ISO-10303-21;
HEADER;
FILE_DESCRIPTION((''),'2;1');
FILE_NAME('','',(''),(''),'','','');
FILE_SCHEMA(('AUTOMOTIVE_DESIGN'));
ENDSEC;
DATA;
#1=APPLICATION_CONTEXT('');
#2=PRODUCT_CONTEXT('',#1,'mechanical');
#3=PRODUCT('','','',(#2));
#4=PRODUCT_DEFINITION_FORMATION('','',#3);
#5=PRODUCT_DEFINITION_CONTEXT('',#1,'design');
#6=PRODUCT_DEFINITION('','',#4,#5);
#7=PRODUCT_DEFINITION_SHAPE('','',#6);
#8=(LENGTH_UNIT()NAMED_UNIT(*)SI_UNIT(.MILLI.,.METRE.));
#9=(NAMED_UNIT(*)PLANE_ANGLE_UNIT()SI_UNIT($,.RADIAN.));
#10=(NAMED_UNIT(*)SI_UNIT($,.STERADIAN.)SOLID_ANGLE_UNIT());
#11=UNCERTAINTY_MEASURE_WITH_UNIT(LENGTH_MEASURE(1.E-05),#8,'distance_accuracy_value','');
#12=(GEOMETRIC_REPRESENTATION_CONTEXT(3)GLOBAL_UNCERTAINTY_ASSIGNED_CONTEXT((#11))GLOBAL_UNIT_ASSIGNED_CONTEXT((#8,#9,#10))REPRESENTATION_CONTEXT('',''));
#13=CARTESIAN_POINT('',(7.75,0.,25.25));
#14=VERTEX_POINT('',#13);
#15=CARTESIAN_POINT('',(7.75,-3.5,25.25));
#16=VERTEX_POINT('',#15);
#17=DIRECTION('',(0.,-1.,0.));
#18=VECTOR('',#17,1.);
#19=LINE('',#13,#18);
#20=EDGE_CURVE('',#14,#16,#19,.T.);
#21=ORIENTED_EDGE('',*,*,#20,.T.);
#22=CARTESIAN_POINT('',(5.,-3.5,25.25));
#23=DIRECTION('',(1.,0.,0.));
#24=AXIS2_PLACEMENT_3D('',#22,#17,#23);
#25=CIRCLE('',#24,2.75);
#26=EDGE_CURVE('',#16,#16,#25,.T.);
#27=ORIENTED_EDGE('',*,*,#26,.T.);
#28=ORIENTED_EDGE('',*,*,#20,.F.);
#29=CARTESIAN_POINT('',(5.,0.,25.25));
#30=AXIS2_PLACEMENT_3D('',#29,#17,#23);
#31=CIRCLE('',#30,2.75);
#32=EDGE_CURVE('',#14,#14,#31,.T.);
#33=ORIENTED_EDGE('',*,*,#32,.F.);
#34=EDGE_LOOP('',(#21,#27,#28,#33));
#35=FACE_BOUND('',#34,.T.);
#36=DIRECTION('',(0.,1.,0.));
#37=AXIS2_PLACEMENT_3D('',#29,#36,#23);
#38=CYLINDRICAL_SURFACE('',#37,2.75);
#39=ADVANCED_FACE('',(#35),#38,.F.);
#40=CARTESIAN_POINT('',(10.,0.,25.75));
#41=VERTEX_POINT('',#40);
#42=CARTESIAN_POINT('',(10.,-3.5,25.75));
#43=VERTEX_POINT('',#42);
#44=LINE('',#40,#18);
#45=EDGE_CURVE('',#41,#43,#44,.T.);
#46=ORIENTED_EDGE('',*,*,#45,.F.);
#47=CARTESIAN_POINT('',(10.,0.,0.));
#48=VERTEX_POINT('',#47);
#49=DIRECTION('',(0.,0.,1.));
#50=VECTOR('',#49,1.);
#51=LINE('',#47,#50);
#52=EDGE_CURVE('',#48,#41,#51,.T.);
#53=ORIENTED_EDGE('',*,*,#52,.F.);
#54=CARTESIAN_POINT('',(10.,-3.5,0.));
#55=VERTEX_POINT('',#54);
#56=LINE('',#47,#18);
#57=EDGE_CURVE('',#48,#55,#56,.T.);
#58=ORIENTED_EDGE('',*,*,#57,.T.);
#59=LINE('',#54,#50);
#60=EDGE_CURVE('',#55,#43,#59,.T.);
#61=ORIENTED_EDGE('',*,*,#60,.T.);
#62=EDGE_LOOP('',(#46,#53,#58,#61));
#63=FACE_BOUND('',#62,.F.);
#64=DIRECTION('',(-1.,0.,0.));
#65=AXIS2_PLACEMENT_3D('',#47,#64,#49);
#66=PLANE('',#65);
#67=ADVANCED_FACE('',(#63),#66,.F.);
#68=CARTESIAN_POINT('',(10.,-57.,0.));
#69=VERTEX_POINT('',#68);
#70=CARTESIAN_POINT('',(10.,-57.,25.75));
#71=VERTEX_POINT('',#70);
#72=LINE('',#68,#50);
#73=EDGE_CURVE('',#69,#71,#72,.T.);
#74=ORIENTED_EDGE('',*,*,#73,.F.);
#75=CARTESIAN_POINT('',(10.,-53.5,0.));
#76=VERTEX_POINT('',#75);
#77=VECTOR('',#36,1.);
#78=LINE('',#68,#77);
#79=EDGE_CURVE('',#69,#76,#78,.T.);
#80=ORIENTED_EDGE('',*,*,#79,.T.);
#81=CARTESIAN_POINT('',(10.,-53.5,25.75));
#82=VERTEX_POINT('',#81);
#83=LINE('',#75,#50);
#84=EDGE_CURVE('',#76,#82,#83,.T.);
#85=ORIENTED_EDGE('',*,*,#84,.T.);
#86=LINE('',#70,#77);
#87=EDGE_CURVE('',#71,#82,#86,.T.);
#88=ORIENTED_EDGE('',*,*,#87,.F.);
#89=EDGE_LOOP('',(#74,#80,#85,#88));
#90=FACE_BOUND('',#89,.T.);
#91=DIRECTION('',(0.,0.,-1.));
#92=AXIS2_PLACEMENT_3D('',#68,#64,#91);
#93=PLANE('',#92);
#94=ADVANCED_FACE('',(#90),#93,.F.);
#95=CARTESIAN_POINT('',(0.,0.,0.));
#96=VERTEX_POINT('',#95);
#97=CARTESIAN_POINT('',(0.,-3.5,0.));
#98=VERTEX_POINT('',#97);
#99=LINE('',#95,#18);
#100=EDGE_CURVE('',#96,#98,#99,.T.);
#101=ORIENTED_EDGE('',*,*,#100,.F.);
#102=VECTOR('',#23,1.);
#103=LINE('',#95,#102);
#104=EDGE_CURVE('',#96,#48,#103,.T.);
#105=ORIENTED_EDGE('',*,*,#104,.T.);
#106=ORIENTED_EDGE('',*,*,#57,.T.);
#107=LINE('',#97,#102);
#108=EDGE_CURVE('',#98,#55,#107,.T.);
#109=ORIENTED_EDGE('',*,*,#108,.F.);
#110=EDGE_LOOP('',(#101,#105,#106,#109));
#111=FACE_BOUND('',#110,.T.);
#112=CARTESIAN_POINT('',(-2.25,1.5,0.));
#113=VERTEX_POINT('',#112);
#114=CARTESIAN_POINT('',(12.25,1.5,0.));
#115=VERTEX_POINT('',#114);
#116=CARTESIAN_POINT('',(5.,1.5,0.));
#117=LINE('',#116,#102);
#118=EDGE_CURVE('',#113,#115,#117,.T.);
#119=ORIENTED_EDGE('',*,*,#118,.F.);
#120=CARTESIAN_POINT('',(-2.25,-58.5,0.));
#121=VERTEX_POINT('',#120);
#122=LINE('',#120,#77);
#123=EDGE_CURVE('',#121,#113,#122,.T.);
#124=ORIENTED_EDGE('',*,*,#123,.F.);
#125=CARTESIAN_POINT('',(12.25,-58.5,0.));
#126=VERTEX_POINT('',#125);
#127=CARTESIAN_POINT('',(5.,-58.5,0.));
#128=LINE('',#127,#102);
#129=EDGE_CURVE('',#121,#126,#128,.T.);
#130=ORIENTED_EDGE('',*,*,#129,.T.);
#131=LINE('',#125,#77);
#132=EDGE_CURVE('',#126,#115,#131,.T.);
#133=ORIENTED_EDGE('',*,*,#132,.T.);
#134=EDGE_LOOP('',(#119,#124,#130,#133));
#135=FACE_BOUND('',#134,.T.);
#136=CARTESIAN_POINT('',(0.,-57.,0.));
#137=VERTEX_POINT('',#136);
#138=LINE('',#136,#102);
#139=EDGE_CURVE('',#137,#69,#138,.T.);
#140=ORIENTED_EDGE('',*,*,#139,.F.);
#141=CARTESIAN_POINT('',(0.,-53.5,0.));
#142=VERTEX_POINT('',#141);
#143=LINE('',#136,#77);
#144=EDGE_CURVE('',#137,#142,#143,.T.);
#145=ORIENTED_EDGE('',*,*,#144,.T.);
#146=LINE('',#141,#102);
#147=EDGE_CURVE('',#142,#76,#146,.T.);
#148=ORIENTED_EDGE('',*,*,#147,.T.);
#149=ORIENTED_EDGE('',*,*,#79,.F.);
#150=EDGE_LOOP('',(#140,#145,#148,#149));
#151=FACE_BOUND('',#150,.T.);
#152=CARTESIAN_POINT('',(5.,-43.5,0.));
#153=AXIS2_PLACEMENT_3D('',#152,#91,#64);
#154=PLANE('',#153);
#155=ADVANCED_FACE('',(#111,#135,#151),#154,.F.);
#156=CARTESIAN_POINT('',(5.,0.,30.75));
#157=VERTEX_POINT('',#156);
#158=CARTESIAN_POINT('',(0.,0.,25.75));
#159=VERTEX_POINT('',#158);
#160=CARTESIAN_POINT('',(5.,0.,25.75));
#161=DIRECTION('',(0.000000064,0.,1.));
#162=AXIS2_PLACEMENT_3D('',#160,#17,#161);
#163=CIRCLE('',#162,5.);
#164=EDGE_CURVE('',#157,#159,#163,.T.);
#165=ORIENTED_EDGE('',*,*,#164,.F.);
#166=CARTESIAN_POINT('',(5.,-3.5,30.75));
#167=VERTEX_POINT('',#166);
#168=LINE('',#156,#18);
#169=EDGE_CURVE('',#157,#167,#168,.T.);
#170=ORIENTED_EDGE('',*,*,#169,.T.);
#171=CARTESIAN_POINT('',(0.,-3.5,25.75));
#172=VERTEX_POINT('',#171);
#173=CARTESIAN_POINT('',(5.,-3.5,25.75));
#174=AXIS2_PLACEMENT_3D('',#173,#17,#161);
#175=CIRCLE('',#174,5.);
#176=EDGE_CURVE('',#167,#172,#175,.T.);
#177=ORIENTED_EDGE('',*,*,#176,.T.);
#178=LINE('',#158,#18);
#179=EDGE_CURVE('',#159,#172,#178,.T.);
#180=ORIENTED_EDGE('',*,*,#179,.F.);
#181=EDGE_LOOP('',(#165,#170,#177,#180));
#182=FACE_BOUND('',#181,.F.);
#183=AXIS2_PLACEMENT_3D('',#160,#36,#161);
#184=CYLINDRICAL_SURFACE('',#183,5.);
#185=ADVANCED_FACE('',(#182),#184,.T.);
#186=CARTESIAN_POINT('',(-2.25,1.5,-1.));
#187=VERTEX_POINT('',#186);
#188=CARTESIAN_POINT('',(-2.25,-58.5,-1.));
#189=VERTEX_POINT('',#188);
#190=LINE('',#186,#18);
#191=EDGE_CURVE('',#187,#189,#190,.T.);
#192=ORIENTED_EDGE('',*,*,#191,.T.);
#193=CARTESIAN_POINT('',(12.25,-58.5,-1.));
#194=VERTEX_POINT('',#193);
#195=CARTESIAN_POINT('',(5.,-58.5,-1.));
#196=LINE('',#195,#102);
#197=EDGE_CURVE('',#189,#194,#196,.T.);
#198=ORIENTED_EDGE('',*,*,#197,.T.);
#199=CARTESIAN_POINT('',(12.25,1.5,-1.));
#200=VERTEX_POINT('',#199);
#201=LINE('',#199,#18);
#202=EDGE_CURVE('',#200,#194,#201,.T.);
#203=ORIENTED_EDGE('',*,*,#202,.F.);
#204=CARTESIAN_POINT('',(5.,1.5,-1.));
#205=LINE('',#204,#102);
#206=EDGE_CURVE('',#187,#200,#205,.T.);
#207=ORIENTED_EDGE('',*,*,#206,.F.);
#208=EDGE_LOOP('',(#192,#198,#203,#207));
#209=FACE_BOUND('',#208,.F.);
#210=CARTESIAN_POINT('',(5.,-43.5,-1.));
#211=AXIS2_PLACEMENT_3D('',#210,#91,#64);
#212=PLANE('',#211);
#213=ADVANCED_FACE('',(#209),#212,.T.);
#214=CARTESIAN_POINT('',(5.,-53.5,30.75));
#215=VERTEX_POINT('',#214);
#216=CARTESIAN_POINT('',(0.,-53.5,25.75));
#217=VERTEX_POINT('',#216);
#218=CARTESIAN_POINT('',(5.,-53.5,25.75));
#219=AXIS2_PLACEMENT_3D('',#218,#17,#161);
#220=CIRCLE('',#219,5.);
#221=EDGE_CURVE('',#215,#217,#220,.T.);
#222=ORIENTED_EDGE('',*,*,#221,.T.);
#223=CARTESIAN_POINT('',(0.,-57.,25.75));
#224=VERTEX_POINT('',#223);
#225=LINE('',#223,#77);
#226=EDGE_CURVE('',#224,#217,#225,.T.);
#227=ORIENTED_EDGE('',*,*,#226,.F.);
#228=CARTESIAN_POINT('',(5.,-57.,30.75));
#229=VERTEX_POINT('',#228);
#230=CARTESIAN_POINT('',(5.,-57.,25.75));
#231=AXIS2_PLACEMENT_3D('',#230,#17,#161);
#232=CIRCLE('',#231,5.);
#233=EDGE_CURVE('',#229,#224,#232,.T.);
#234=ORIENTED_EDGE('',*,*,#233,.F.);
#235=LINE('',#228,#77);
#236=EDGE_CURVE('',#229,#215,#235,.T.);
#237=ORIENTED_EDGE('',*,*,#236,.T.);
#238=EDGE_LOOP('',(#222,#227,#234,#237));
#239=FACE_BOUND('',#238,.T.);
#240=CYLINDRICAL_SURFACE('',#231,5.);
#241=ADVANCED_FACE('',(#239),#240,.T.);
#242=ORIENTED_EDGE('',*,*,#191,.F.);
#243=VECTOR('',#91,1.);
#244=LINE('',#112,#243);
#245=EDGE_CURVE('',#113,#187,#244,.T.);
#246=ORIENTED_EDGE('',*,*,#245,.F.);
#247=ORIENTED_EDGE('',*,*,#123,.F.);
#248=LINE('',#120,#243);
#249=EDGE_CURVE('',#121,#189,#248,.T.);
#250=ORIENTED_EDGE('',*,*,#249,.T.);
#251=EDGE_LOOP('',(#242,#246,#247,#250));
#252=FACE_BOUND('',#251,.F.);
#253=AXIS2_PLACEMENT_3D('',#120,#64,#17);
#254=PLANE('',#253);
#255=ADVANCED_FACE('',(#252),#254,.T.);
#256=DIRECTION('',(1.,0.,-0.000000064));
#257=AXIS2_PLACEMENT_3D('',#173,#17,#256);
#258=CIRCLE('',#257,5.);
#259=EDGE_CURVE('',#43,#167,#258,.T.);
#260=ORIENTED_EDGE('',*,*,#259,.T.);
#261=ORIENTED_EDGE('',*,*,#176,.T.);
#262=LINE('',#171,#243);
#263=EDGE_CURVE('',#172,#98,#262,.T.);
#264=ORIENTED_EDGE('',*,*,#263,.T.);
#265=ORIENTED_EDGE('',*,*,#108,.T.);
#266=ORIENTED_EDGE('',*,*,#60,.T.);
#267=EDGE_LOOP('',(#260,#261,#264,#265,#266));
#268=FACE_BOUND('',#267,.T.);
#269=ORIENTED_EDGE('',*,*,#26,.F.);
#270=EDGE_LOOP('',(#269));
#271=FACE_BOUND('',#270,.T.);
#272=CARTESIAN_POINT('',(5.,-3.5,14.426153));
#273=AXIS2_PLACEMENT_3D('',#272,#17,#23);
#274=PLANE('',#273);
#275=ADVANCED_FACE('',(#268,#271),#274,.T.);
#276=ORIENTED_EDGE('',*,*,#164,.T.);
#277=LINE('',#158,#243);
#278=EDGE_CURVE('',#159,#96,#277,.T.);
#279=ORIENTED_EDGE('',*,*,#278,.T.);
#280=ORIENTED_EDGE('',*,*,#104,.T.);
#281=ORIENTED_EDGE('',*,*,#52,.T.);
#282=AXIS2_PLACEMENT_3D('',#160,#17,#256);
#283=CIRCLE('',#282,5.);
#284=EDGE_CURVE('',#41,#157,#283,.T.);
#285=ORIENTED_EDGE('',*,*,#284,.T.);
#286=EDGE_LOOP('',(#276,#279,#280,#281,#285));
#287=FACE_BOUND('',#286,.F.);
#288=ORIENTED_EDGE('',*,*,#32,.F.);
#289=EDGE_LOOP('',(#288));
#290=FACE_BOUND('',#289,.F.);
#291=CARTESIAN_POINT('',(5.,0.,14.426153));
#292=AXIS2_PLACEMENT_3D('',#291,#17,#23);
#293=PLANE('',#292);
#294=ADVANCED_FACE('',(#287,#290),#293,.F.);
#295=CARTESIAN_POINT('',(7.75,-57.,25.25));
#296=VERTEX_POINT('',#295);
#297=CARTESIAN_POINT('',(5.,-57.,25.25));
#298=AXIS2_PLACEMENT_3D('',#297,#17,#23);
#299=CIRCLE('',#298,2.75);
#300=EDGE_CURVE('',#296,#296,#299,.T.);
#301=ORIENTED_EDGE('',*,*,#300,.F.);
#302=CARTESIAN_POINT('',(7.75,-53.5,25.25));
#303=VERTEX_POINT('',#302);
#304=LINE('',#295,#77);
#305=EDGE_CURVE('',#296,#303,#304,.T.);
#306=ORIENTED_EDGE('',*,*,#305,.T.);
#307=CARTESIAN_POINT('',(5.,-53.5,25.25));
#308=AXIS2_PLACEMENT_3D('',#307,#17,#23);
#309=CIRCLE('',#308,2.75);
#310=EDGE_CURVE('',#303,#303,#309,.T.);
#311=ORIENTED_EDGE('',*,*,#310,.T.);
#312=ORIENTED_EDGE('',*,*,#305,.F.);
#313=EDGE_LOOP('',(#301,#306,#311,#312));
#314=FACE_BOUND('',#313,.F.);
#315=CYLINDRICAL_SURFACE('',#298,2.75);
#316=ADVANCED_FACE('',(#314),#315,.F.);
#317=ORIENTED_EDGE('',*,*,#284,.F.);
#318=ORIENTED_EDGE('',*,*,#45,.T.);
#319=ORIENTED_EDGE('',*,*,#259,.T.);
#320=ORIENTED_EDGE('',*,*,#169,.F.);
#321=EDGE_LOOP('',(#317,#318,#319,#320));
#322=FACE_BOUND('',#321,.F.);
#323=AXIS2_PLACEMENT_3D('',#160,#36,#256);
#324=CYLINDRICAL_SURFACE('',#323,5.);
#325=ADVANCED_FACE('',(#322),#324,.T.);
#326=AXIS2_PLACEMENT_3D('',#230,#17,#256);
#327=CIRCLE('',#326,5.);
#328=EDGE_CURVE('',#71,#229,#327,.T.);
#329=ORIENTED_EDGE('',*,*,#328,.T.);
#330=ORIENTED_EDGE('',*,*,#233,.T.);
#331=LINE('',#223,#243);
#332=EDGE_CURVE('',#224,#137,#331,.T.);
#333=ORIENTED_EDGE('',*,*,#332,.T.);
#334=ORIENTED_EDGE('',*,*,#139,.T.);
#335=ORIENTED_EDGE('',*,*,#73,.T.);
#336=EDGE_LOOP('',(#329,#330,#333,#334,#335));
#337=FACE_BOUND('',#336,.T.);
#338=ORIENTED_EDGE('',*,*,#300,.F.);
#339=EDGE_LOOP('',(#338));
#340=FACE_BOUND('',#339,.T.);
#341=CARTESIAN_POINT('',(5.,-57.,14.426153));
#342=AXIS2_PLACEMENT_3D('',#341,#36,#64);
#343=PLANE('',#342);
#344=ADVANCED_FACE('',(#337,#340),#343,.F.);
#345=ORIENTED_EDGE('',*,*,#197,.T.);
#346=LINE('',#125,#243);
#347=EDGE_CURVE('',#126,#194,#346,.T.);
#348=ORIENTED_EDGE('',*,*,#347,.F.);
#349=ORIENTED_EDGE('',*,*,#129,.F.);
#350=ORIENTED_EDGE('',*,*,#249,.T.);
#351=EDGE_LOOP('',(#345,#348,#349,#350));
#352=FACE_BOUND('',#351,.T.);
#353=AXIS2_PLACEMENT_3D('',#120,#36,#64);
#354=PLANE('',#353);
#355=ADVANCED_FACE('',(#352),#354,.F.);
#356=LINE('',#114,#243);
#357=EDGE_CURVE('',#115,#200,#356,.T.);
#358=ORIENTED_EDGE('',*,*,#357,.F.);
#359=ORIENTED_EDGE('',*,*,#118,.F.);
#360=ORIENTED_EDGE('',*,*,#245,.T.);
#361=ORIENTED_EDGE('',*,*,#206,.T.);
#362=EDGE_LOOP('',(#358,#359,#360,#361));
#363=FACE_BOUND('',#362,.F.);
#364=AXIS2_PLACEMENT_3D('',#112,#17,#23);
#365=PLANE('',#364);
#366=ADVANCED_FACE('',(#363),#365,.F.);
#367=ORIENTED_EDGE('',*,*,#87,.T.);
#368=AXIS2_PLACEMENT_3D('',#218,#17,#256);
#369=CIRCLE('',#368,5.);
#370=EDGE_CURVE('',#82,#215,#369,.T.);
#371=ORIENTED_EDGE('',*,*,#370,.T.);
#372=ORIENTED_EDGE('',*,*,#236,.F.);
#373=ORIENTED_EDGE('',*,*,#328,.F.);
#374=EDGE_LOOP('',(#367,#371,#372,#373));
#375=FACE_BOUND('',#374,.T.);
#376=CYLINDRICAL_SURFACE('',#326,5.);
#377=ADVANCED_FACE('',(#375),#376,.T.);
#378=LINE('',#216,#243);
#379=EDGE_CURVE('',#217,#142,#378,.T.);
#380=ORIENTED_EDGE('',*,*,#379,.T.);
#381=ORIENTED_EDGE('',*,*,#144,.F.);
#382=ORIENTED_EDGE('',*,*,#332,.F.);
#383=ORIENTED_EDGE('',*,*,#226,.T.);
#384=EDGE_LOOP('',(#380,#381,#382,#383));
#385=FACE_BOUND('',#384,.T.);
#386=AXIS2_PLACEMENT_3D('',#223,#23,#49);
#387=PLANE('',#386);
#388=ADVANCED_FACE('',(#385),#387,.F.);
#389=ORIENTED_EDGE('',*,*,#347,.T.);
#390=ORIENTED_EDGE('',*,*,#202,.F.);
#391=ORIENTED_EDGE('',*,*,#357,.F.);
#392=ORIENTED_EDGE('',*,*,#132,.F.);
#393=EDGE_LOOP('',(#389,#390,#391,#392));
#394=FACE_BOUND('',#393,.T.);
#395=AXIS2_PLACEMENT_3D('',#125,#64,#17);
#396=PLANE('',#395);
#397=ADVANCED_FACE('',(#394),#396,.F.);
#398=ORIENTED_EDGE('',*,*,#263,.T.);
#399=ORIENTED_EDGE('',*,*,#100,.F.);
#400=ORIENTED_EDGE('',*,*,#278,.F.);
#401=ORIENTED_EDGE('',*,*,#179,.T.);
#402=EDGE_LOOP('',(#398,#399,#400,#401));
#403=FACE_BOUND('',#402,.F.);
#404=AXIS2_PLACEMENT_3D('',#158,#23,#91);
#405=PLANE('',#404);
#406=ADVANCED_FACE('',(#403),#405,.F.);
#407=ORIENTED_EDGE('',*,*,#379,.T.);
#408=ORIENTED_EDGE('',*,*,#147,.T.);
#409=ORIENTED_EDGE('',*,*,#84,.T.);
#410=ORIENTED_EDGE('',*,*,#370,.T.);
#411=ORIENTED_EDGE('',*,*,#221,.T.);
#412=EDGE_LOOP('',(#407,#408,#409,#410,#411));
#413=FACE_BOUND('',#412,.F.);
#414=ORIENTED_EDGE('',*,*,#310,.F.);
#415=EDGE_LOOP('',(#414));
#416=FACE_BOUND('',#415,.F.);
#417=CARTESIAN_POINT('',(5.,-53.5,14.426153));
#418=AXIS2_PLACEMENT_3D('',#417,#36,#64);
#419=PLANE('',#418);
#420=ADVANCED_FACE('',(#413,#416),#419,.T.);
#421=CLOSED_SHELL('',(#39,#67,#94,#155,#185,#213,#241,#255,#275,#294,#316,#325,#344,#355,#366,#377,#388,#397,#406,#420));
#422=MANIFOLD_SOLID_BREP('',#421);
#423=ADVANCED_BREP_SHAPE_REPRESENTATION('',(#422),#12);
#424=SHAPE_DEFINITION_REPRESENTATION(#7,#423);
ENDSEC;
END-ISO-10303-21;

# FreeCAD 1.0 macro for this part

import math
import FreeCAD as App
import Part
import Sketcher
Q = App.Units.Quantity

doc = App.newDocument("Part")
params = doc.addObject("Spreadsheet::Sheet", "Params")
for row, (alias, value) in enumerate([
    ("sketch1_radius", "5 mm"),
    ("sketch1_diameter", "5.5 mm"),
    ("sketch1_height", "25.75 mm"),
    ("pad1_length", "3.5 mm"),
    ("sketch2_height", "30 mm"),
    ("sketch2_width", "14.5 mm"),
    ("pad2_length", "1 mm"),
], start=1):
    params.set(f"A{row}", alias)
    params.set(f"B{row}", "=" + value)
    params.setAlias(f"B{row}", alias)

body = doc.addObject("PartDesign::Body", "Body")

sketch1 = body.newObject("Sketcher::SketchObject", "Sketch")
sketch1.AttachmentSupport = (doc.getObject("XZ_Plane"), [""])
sketch1.MapMode = "FlatFace"
sketch1.addGeometry([
    Part.LineSegment(App.Vector(0, 25.75, 0), App.Vector(0, 0, 0)),
    Part.LineSegment(App.Vector(0, 0, 0), App.Vector(10, 0, 0)),
    Part.LineSegment(App.Vector(10, 0, 0), App.Vector(10, 25.75, 0)),
    Part.ArcOfCircle(Part.Circle(App.Vector(5, 25.75, 0), App.Vector(0, 0, 1), 5), math.radians(-0.000004), math.radians(90.000004)),
    Part.ArcOfCircle(Part.Circle(App.Vector(5, 25.75, 0), App.Vector(0, 0, 1), 5), math.radians(89.999996), math.radians(180.000004)),
    Part.Circle(App.Vector(5, 25.25, 0), App.Vector(0, 0, 1), 2.75),
], False)
sketch1.addConstraint([
    Sketcher.Constraint("Coincident", 0, 2, 1, 1),
    Sketcher.Constraint("Coincident", 1, 2, 2, 1),
    Sketcher.Constraint("Tangent", 2, 2, 3, 1),
    Sketcher.Constraint("Tangent", 3, 2, 4, 1),
    Sketcher.Constraint("Tangent", 4, 2, 0, 1),
    Sketcher.Constraint("Vertical", 0),
    Sketcher.Constraint("Horizontal", 1),
    Sketcher.Constraint("Vertical", 2),
    Sketcher.Constraint("Coincident", 0, 2, -1, 1),
    Sketcher.Constraint("Equal", 3, 4),
    Sketcher.Constraint("Vertical", 4, 3, 5, 3),
    Sketcher.Constraint("Vertical", 5, 3, 3, 2),
    Sketcher.Constraint("Radius", 3, Q("5 mm")),
    Sketcher.Constraint("Diameter", 5, Q("5.5 mm")),
    Sketcher.Constraint("DistanceY", 0, 2, 0, 1, Q("25.75 mm")),
    Sketcher.Constraint("DistanceY", 5, 3, 3, 3, Q("0.5 mm")),
])
sketch1.setExpression("Constraints[12]", "Params.sketch1_radius")
sketch1.setExpression("Constraints[13]", "Params.sketch1_diameter")
sketch1.setExpression("Constraints[14]", "Params.sketch1_height")
pad1 = body.newObject("PartDesign::Pad", "Pad")
pad1.Profile = sketch1
pad1.setExpression("Length", "Params.pad1_length")

sketch2 = body.newObject("Sketcher::SketchObject", "Sketch001")
sketch2.AttachmentSupport = (doc.getObject("XY_Plane"), [""])
sketch2.MapMode = "FlatFace"
sketch2.addGeometry([
    Part.LineSegment(App.Vector(-2.25, -28.5, 0), App.Vector(-2.25, 1.5, 0)),
    Part.LineSegment(App.Vector(-2.25, 1.5, 0), App.Vector(12.25, 1.5, 0)),
    Part.LineSegment(App.Vector(12.25, 1.5, 0), App.Vector(12.25, -28.5, 0)),
    Part.LineSegment(App.Vector(12.25, -28.5, 0), App.Vector(-2.25, -28.5, 0)),
], False)
sketch2.addConstraint([
    Sketcher.Constraint("Coincident", 0, 2, 1, 1),
    Sketcher.Constraint("Coincident", 1, 2, 2, 1),
    Sketcher.Constraint("Coincident", 2, 2, 3, 1),
    Sketcher.Constraint("Coincident", 3, 2, 0, 1),
    Sketcher.Constraint("Vertical", 0),
    Sketcher.Constraint("Horizontal", 1),
    Sketcher.Constraint("Vertical", 2),
    Sketcher.Constraint("Horizontal", 3),
    Sketcher.Constraint("DistanceY", 0, 1, 0, 2, Q("30 mm")),
    Sketcher.Constraint("DistanceX", 1, 1, 1, 2, Q("14.5 mm")),
    Sketcher.Constraint("DistanceY", -1, 1, 0, 2, Q("1.5 mm")),
    Sketcher.Constraint("DistanceX", 0, 2, -1, 1, Q("2.25 mm")),
])
sketch2.setExpression("Constraints[8]", "Params.sketch2_height")
sketch2.setExpression("Constraints[9]", "Params.sketch2_width")
pad2 = body.newObject("PartDesign::Pad", "Pad001")
pad2.Profile = sketch2
pad2.setExpression("Length", "Params.pad2_length")
pad2.Reversed = True
body2 = doc.addObject("PartDesign::Body", "Body001")
doc.recompute()

body2.BaseFeature = body
doc.recompute()

mirroring = doc.addObject("Part::Mirroring", "Mirroring")
mirroring.Source = body
mirroring.Base = App.Vector(5, -28.5, -0.5)
mirroring.Normal = App.Vector(0, -1, 0)
body3 = doc.addObject("PartDesign::Body", "Body002")
body3.BaseFeature = mirroring
boolean = body2.newObject("PartDesign::Boolean", "Boolean")
boolean.Type = "Fuse"
boolean.addObjects([body3])
doc.recompute()
mirroring.Visibility = False

doc.recompute()
